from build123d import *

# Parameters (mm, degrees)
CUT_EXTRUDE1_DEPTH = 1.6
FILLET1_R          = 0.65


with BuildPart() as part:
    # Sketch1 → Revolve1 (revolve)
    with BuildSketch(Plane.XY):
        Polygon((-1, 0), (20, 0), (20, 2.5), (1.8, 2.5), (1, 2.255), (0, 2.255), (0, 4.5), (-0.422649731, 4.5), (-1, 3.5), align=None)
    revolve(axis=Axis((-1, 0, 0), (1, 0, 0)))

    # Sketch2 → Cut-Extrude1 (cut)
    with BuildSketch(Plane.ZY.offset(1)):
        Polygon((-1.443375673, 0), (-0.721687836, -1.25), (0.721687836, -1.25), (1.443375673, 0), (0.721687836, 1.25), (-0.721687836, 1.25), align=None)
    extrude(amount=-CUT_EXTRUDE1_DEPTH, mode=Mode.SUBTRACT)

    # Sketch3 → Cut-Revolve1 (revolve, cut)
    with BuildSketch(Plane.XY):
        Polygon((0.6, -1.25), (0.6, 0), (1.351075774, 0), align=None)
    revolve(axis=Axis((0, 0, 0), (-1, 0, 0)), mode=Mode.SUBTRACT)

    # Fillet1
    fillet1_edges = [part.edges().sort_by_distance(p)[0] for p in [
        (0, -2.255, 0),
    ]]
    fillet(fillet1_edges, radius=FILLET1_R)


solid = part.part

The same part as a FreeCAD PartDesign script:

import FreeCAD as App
import Part
import Sketcher

V = App.Vector
Q = App.Units.Quantity


def edges_at(feature, points):
    """Names of the edges that pass closest to the given points."""
    edges = feature.Shape.Edges
    near = lambda p: min(range(len(edges)), key=lambda i: edges[i].distToShape(Part.Vertex(*p))[0])
    return sorted({f"Edge{near(p) + 1}" for p in points})

doc = App.newDocument("Part")
body = doc.addObject("PartDesign::Body", "Body")

# Sketch on XY plane
sketch1 = doc.addObject("Sketcher::SketchObject", "Sketch")
body.addObject(sketch1)
sketch1.AttachmentSupport = (doc.XY_Plane, [""])
sketch1.MapMode = "FlatFace"
sketch1.addGeometry([
    Part.LineSegment(V(-1, 0, 0), V(20, 0, 0)),  # 0
    Part.LineSegment(V(20, 0, 0), V(20, 2.5, 0)),  # 1
    Part.LineSegment(V(20, 2.5, 0), V(1.8, 2.5, 0)),  # 2
    Part.LineSegment(V(1.8, 2.5, 0), V(1, 2.25, 0)),  # 3
    Part.LineSegment(V(1, 2.25, 0), V(0, 2.25, 0)),  # 4
    Part.LineSegment(V(0, 2.25, 0), V(0, 4.5, 0)),  # 5
    Part.LineSegment(V(0, 4.5, 0), V(-0.42, 4.5, 0)),  # 6
    Part.LineSegment(V(-0.42, 4.5, 0), V(-1, 3.5, 0)),  # 7
    Part.LineSegment(V(-1, 3.5, 0), V(-1, 0, 0)),  # 8
], False)
sketch1.addConstraint([
    Sketcher.Constraint("Coincident", 0, 2, 1, 1),
    Sketcher.Constraint("Coincident", 1, 2, 2, 1),
    Sketcher.Constraint("Coincident", 2, 2, 3, 1),
    Sketcher.Constraint("Coincident", 3, 2, 4, 1),
    Sketcher.Constraint("Coincident", 4, 2, 5, 1),
    Sketcher.Constraint("Coincident", 5, 2, 6, 1),
    Sketcher.Constraint("Coincident", 6, 2, 7, 1),
    Sketcher.Constraint("Coincident", 7, 2, 8, 1),
    Sketcher.Constraint("Coincident", 8, 2, 0, 1),
    Sketcher.Constraint("Horizontal", 0),
    Sketcher.Constraint("Vertical", 1),
    Sketcher.Constraint("Horizontal", 2),
    Sketcher.Constraint("Horizontal", 4),
    Sketcher.Constraint("Vertical", 5),
    Sketcher.Constraint("Horizontal", 6),
    Sketcher.Constraint("Vertical", 8),
    Sketcher.Constraint("PointOnObject", 0, 2, -1),
    Sketcher.Constraint("PointOnObject", 4, 2, -2),
    Sketcher.Constraint("DistanceX", 0, 1, 0, 2, 21.0),
    Sketcher.Constraint("DistanceX", 4, 2, 4, 1, 1.0),
    Sketcher.Constraint("Angle", 7, Q("-120 deg")),
    Sketcher.Constraint("DistanceX", 2, 2, 2, 1, 18.2),
    Sketcher.Constraint("DistanceY", 1, 1, 1, 2, 2.5),
    Sketcher.Constraint("DistanceY", 8, 2, 8, 1, 3.5),
    Sketcher.Constraint("DistanceX", -1, 1, 0, 2, 20.0),
    Sketcher.Constraint("DistanceY", 2, 2, 5, 2, 2.0),
    Sketcher.Constraint("DistanceY", 5, 1, 5, 2, 2.245),
])
revolution = doc.addObject("PartDesign::Revolution", "Revolution")
body.addObject(revolution)
revolution.Profile = sketch1
revolution.ReferenceAxis = (sketch1, ["H_Axis"])
revolution.Angle = 360

# Sketch on YZ plane
sketch2 = doc.addObject("Sketcher::SketchObject", "Sketch001")
body.addObject(sketch2)
sketch2.AttachmentSupport = (doc.YZ_Plane, [""])
sketch2.MapMode = "FlatFace"
sketch2.AttachmentOffset = App.Placement(V(0, 0, -1), App.Rotation())
sketch2.addGeometry([
    Part.LineSegment(V(0, -1.4, 0), V(-1.2, -0.7, 0)),  # 0
    Part.LineSegment(V(-1.2, -0.7, 0), V(-1.2, 0.7, 0)),  # 1
    Part.LineSegment(V(-1.2, 0.7, 0), V(0, 1.4, 0)),  # 2
    Part.LineSegment(V(0, 1.4, 0), V(1.2, 0.7, 0)),  # 3
    Part.LineSegment(V(1.2, 0.7, 0), V(1.2, -0.7, 0)),  # 4
    Part.LineSegment(V(1.2, -0.7, 0), V(0, -1.4, 0)),  # 5
], False)
sketch2.addConstraint([
    Sketcher.Constraint("Coincident", 0, 2, 1, 1),
    Sketcher.Constraint("Coincident", 1, 2, 2, 1),
    Sketcher.Constraint("Coincident", 2, 2, 3, 1),
    Sketcher.Constraint("Coincident", 3, 2, 4, 1),
    Sketcher.Constraint("Coincident", 4, 2, 5, 1),
    Sketcher.Constraint("Coincident", 5, 2, 0, 1),
    Sketcher.Constraint("Vertical", 1),
    Sketcher.Constraint("Vertical", 4),
    Sketcher.Constraint("Symmetric", 0, 2, 3, 2, -1, 1),
    Sketcher.Constraint("Symmetric", 2, 2, 5, 2, -1, 1),
    Sketcher.Constraint("PointOnObject", 2, 2, -2),
    Sketcher.Constraint("Parallel", 2, 5),
    Sketcher.Constraint("Horizontal", 1, 2, 3, 2),
    Sketcher.Constraint("Angle", 0, Q("150 deg")),
    Sketcher.Constraint("DistanceX", 1, 2, 3, 2, 2.5),
    Sketcher.Constraint("DistanceY", 1, 1, 1, 2, 1.443376),
])
pocket1 = doc.addObject("PartDesign::Pocket", "Pocket")
body.addObject(pocket1)
pocket1.Profile = sketch2
pocket1.Length = 1.6
pocket1.Reversed = True

# Sketch on XY plane
sketch3 = doc.addObject("Sketcher::SketchObject", "Sketch002")
body.addObject(sketch3)
sketch3.AttachmentSupport = (doc.XY_Plane, [""])
sketch3.MapMode = "FlatFace"
sketch3.addGeometry([
    Part.LineSegment(V(0.6, 0, 0), V(0.6, -1.2, 0)),
    Part.LineSegment(V(0.6, -1.2, 0), V(1.4, 0, 0)),
    Part.LineSegment(V(1.4, 0, 0), V(0.6, 0, 0)),
], False)
sketch3.addConstraint([
    Sketcher.Constraint("Coincident", 0, 2, 1, 1),
    Sketcher.Constraint("Coincident", 1, 2, 2, 1),
    Sketcher.Constraint("Coincident", 2, 2, 0, 1),
    Sketcher.Constraint("Vertical", 0),
    Sketcher.Constraint("Horizontal", 2),
    Sketcher.Constraint("PointOnObject", 1, 2, -1),
    Sketcher.Constraint("Angle", 1, Q("59 deg")),
    Sketcher.Constraint("DistanceY", 0, 2, 0, 1, 1.25),
    Sketcher.Constraint("DistanceX", -1, 1, 0, 2, 0.6),
])
groove = doc.addObject("PartDesign::Groove", "Groove")
body.addObject(groove)
groove.Profile = sketch3
groove.ReferenceAxis = (sketch3, ["H_Axis"])
groove.Angle = 360
doc.recompute()

fillet = doc.addObject("PartDesign::Fillet", "Fillet")
body.addObject(fillet)
fillet.Base = (groove, edges_at(groove, [(0, -2.255, 0)]))
fillet.Radius = 0.65

doc.recompute()
